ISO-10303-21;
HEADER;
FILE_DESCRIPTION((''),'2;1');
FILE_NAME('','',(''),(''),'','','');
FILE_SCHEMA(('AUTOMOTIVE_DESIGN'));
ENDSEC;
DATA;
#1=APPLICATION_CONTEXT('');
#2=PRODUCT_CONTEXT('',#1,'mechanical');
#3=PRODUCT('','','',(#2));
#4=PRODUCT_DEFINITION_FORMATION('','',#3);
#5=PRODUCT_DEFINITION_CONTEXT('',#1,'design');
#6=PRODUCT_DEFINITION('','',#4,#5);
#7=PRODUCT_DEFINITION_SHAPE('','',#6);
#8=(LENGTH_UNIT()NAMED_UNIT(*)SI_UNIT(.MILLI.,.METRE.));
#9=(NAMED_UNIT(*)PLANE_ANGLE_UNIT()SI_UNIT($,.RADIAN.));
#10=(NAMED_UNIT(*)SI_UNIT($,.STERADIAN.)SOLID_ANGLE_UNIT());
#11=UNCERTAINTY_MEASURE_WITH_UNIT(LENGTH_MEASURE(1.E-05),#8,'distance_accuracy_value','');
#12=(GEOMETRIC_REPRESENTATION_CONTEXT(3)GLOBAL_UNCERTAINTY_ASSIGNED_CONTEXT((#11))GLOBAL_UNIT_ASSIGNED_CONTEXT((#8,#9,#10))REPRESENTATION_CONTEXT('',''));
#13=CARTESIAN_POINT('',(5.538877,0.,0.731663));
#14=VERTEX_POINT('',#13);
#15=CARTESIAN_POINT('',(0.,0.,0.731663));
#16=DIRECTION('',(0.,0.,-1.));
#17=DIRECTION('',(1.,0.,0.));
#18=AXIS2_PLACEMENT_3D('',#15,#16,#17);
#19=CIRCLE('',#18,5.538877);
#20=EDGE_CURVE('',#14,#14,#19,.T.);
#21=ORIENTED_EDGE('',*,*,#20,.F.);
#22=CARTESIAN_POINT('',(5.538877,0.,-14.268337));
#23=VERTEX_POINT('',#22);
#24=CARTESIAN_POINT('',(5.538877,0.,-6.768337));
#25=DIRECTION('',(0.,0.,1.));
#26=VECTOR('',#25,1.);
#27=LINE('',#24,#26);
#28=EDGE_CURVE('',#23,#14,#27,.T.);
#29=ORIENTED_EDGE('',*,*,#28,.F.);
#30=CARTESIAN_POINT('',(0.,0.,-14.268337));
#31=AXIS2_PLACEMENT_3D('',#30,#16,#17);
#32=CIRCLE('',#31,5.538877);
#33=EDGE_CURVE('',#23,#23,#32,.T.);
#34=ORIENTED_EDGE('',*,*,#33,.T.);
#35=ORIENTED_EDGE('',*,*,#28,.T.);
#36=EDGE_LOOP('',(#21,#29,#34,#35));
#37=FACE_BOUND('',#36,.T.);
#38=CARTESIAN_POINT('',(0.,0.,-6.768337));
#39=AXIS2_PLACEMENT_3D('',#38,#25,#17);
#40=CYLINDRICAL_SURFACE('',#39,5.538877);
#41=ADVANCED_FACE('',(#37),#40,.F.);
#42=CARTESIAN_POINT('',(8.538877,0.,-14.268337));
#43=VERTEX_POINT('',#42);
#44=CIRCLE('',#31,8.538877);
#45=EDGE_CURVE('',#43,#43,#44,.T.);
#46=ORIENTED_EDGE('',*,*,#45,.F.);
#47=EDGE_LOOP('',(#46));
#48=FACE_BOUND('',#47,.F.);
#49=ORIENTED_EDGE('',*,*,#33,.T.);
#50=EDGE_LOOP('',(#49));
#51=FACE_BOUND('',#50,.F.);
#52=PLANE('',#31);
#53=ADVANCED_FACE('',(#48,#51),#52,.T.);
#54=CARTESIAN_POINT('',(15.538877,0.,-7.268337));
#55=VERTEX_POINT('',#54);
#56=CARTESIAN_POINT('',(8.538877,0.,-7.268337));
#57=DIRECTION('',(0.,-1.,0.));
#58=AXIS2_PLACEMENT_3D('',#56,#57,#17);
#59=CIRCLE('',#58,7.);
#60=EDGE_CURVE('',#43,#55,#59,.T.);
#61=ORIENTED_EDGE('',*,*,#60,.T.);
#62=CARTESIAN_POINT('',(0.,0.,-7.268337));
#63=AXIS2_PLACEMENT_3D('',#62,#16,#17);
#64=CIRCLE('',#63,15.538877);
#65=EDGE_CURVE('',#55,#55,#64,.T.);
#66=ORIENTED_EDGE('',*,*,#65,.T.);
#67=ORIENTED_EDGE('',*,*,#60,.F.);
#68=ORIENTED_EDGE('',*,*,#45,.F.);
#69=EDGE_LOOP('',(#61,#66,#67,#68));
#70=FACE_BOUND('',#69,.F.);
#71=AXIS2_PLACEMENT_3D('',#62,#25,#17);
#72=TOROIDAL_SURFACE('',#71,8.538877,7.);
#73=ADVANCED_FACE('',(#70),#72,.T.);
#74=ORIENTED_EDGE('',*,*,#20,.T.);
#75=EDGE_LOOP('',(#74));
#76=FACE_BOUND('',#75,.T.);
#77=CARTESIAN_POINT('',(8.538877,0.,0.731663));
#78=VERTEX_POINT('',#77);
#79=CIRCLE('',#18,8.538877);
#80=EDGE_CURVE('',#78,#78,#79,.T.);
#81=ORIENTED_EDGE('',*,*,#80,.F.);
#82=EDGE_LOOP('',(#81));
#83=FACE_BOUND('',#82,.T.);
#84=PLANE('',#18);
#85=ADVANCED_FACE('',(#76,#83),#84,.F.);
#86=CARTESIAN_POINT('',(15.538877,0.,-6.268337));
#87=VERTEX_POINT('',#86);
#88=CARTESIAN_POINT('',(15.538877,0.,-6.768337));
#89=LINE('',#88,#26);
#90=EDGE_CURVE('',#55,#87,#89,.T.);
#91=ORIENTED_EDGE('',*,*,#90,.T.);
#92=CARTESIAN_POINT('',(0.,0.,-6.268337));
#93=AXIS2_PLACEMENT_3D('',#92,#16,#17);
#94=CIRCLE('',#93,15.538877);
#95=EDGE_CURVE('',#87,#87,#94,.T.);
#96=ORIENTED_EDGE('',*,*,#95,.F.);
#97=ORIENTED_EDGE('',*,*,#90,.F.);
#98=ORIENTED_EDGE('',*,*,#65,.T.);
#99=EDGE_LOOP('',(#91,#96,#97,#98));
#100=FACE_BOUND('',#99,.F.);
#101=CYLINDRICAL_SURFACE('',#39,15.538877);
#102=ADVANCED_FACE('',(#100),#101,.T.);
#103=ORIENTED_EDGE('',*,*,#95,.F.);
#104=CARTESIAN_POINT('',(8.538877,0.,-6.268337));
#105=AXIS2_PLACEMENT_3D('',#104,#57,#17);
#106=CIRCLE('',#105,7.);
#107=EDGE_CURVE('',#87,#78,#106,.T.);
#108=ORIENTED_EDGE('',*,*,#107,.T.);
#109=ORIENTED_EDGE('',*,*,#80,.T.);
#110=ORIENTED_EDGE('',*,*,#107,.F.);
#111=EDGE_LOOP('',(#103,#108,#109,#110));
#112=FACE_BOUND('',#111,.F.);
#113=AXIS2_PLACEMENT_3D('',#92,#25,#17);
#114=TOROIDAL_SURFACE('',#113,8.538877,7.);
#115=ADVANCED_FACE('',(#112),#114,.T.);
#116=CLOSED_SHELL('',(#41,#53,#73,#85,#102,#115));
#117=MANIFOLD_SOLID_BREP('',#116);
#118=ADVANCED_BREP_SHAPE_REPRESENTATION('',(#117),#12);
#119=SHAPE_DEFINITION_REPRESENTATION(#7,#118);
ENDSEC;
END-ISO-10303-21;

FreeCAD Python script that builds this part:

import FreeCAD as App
import Part
import Sketcher
from FreeCAD import Vector


def edges_at(feature, points):
    """Names of the edges that pass closest to the given points."""
    edges = feature.Shape.Edges
    near = lambda p: min(range(len(edges)), key=lambda i: edges[i].distToShape(Part.Vertex(*p))[0])
    return sorted({f"Edge{near(p) + 1}" for p in points})

doc = App.newDocument("Part")
body = doc.addObject("PartDesign::Body", "Body")

sketch1 = doc.addObject("Sketcher::SketchObject", "Sketch")
body.addObject(sketch1)
sketch1.AttachmentSupport = (doc.XZ_Plane, [""])
sketch1.MapMode = "FlatFace"
sketch1.addGeometry([
    Part.LineSegment(Vector(5.538877, 0.731663, 0), Vector(5.538877, -14.268337, 0)),
    Part.LineSegment(Vector(5.538877, -14.268337, 0), Vector(15.538877, -14.268337, 0)),
    Part.LineSegment(Vector(15.538877, -14.268337, 0), Vector(15.538877, 0.731663, 0)),
    Part.LineSegment(Vector(15.538877, 0.731663, 0), Vector(5.538877, 0.731663, 0)),
], False)
sketch1.addConstraint([
    Sketcher.Constraint("Coincident", 0, 2, 1, 1),
    Sketcher.Constraint("Coincident", 1, 2, 2, 1),
    Sketcher.Constraint("Coincident", 2, 2, 3, 1),
    Sketcher.Constraint("Coincident", 3, 2, 0, 1),
    Sketcher.Constraint("Vertical", 0),
    Sketcher.Constraint("Horizontal", 1),
    Sketcher.Constraint("Vertical", 2),
    Sketcher.Constraint("Horizontal", 3),
    Sketcher.Constraint("DistanceX", 1, 1, 1, 2, 10.0),
    Sketcher.Constraint("DistanceY", 0, 2, 0, 1, 15.0),
    Sketcher.Constraint("DistanceX", -1, 1, 0, 2, 5.538877),
    Sketcher.Constraint("DistanceY", 0, 2, -1, 1, 14.268337),
])
revolution = doc.addObject("PartDesign::Revolution", "Revolution")
body.addObject(revolution)
revolution.Profile = sketch1
revolution.ReferenceAxis = (sketch1, ["V_Axis"])
revolution.Angle = 360
doc.recompute()

fillet = doc.addObject("PartDesign::Fillet", "Fillet")
body.addObject(fillet)
fillet.Base = (revolution, edges_at(revolution, [(-15.539, 0, 0.732), (-15.539, 0, -14.268)]))
fillet.Radius = 7

doc.recompute()
